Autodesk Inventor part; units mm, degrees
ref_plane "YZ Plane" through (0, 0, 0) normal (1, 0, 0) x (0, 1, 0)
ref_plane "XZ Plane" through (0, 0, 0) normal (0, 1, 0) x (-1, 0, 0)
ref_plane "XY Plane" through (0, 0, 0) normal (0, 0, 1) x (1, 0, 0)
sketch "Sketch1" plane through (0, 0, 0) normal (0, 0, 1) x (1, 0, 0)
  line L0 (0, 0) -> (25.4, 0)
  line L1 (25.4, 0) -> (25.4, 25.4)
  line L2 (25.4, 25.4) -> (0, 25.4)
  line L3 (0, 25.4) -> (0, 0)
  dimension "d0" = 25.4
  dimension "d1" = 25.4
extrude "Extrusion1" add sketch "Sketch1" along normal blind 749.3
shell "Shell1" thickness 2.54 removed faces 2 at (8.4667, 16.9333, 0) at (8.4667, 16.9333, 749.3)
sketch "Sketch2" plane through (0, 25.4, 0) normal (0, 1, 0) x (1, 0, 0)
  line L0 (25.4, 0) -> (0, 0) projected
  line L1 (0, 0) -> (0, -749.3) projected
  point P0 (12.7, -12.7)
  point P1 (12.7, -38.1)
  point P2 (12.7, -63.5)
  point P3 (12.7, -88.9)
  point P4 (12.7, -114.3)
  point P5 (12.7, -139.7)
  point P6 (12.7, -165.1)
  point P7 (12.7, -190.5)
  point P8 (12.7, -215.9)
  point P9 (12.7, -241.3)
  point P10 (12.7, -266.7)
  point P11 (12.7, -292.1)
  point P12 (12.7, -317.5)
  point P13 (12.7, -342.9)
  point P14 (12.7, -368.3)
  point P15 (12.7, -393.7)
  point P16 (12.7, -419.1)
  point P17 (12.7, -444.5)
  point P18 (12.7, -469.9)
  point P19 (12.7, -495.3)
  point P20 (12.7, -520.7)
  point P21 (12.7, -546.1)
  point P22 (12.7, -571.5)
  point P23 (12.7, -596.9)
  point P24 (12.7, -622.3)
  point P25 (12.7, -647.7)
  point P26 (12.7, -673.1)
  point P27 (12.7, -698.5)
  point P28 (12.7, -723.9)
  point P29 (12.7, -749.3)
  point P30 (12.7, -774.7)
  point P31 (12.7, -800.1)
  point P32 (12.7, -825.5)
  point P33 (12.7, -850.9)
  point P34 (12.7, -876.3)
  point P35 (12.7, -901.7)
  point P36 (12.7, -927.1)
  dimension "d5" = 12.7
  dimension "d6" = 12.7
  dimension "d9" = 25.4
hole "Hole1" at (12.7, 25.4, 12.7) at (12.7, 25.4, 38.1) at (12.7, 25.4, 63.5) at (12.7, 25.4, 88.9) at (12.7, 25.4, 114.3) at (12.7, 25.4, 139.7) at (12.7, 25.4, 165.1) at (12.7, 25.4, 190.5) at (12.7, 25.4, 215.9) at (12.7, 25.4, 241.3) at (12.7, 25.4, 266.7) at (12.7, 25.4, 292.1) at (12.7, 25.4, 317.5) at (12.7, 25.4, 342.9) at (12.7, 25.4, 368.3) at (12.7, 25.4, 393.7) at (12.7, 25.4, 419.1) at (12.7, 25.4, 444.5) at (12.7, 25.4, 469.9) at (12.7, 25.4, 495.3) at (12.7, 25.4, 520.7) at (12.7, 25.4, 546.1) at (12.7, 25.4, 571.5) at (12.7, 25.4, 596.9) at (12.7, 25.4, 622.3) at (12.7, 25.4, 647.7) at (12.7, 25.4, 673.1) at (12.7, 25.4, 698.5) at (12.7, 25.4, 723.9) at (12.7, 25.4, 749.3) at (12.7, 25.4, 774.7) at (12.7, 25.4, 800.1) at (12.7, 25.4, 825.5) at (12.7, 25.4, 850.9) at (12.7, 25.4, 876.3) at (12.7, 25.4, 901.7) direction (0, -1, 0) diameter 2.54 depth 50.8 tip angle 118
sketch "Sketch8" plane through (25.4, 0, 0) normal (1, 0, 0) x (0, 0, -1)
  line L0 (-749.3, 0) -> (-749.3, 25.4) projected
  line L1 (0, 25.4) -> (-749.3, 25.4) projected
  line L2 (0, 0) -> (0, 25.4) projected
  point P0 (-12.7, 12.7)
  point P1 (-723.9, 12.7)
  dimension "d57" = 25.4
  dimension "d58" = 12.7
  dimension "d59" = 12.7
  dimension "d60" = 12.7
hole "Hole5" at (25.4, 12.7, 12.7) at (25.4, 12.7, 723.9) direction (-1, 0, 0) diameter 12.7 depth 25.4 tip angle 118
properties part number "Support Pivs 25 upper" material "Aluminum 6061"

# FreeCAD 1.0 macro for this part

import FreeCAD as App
import Part
import Sketcher

V = App.Vector
Q = App.Units.Quantity


def faces_at(feature, points):
    """Names of the faces that lie closest to the given points."""
    faces = feature.Shape.Faces
    near = lambda p: min(range(len(faces)), key=lambda i: faces[i].distToShape(Part.Vertex(*p))[0])
    return sorted({f"Face{near(p) + 1}" for p in points})


def add_polygon(sketch, points):
    """Adds a closed chain of lines whose ends are joined by coincident constraints."""
    first, n = sketch.GeometryCount, len(points)
    for a, b in zip(points, points[1:] + points[:1]):
        sketch.addGeometry(Part.LineSegment(App.Vector(*a, 0), App.Vector(*b, 0)), False)
    for i in range(n):
        sketch.addConstraint(Sketcher.Constraint("Coincident", first + i, 2, first + (i + 1) % n, 1))

doc = App.newDocument("Part")
body = doc.addObject("PartDesign::Body", "Body")

# Sketch on XY plane
sketch1 = body.newObject("Sketcher::SketchObject", "Sketch")
sketch1.AttachmentSupport = (doc.getObject("XY_Plane"), [""])
sketch1.MapMode = "FlatFace"
add_polygon(sketch1, [(0, 25.4), (0, 0), (25.4, 0), (25.4, 25.4)])  # lines 0-3
sketch1.addConstraint(Sketcher.Constraint("Vertical", 0))
sketch1.addConstraint(Sketcher.Constraint("Horizontal", 1))
sketch1.addConstraint(Sketcher.Constraint("Vertical", 2))
sketch1.addConstraint(Sketcher.Constraint("Horizontal", 3))
sketch1.addConstraint(Sketcher.Constraint("Coincident", 0, 2, -1, 1))
sketch1.addConstraint(Sketcher.Constraint("Equal", 3, 0))
sketch1.addConstraint(Sketcher.Constraint("DistanceX", 1, 1, 1, 2, Q("1 in")))
pad1 = body.newObject("PartDesign::Pad", "Pad")
pad1.Profile = sketch1
pad1.Length = Q("29.5 in")
doc.recompute()

thickness = body.newObject("PartDesign::Thickness", "Thickness")
thickness.Base = (pad1, faces_at(pad1, [(8.467, 16.933, 0), (8.467, 16.933, 749.3)]))
thickness.Value = Q("0.1 in")
thickness.Reversed = True
thickness.Join = "Intersection"

# Sketch on XZ plane
sketch2 = body.newObject("Sketcher::SketchObject", "Sketch001")
sketch2.AttachmentSupport = (doc.getObject("XZ_Plane"), [""])
sketch2.MapMode = "FlatFace"
sketch2.AttachmentOffset = App.Placement(V(0, 0, -1 * 25.4), App.Rotation())
sketch2.addGeometry(Part.Circle(V(12.7, 12.7, 0), V(0, 0, 1), 1.27), False)
sketch2.addGeometry(Part.Circle(V(12.7, 38.1, 0), V(0, 0, 1), 1.27), False)
sketch2.addGeometry(Part.Circle(V(12.7, 63.5, 0), V(0, 0, 1), 1.27), False)
sketch2.addGeometry(Part.Circle(V(12.7, 88.9, 0), V(0, 0, 1), 1.27), False)
sketch2.addGeometry(Part.Circle(V(12.7, 114.3, 0), V(0, 0, 1), 1.27), False)
sketch2.addGeometry(Part.Circle(V(12.7, 139.7, 0), V(0, 0, 1), 1.27), False)
sketch2.addGeometry(Part.Circle(V(12.7, 165.1, 0), V(0, 0, 1), 1.27), False)
sketch2.addGeometry(Part.Circle(V(12.7, 190.5, 0), V(0, 0, 1), 1.27), False)
sketch2.addGeometry(Part.Circle(V(12.7, 215.9, 0), V(0, 0, 1), 1.27), False)
sketch2.addGeometry(Part.Circle(V(12.7, 241.3, 0), V(0, 0, 1), 1.27), False)
sketch2.addGeometry(Part.Circle(V(12.7, 266.7, 0), V(0, 0, 1), 1.27), False)
sketch2.addGeometry(Part.Circle(V(12.7, 292.1, 0), V(0, 0, 1), 1.27), False)
sketch2.addGeometry(Part.Circle(V(12.7, 317.5, 0), V(0, 0, 1), 1.27), False)
sketch2.addGeometry(Part.Circle(V(12.7, 342.9, 0), V(0, 0, 1), 1.27), False)
sketch2.addGeometry(Part.Circle(V(12.7, 368.3, 0), V(0, 0, 1), 1.27), False)
sketch2.addGeometry(Part.Circle(V(12.7, 393.7, 0), V(0, 0, 1), 1.27), False)
sketch2.addGeometry(Part.Circle(V(12.7, 419.1, 0), V(0, 0, 1), 1.27), False)
sketch2.addGeometry(Part.Circle(V(12.7, 444.5, 0), V(0, 0, 1), 1.27), False)
sketch2.addGeometry(Part.Circle(V(12.7, 469.9, 0), V(0, 0, 1), 1.27), False)
sketch2.addGeometry(Part.Circle(V(12.7, 495.3, 0), V(0, 0, 1), 1.27), False)
sketch2.addGeometry(Part.Circle(V(12.7, 520.7, 0), V(0, 0, 1), 1.27), False)
sketch2.addGeometry(Part.Circle(V(12.7, 546.1, 0), V(0, 0, 1), 1.27), False)
sketch2.addGeometry(Part.Circle(V(12.7, 571.5, 0), V(0, 0, 1), 1.27), False)
sketch2.addGeometry(Part.Circle(V(12.7, 596.9, 0), V(0, 0, 1), 1.27), False)
sketch2.addGeometry(Part.Circle(V(12.7, 622.3, 0), V(0, 0, 1), 1.27), False)
sketch2.addGeometry(Part.Circle(V(12.7, 647.7, 0), V(0, 0, 1), 1.27), False)
sketch2.addGeometry(Part.Circle(V(12.7, 673.1, 0), V(0, 0, 1), 1.27), False)
sketch2.addGeometry(Part.Circle(V(12.7, 698.5, 0), V(0, 0, 1), 1.27), False)
sketch2.addGeometry(Part.Circle(V(12.7, 723.9, 0), V(0, 0, 1), 1.27), False)
sketch2.addGeometry(Part.Circle(V(12.7, 749.3, 0), V(0, 0, 1), 1.27), False)
sketch2.addGeometry(Part.Circle(V(12.7, 774.7, 0), V(0, 0, 1), 1.27), False)
sketch2.addGeometry(Part.Circle(V(12.7, 800.1, 0), V(0, 0, 1), 1.27), False)
sketch2.addGeometry(Part.Circle(V(12.7, 825.5, 0), V(0, 0, 1), 1.27), False)
sketch2.addGeometry(Part.Circle(V(12.7, 850.9, 0), V(0, 0, 1), 1.27), False)
sketch2.addGeometry(Part.Circle(V(12.7, 876.3, 0), V(0, 0, 1), 1.27), False)
sketch2.addGeometry(Part.Circle(V(12.7, 901.7, 0), V(0, 0, 1), 1.27), False)
sketch2.addConstraint(Sketcher.Constraint("Equal", 0, 1))
sketch2.addConstraint(Sketcher.Constraint("Equal", 1, 2))
sketch2.addConstraint(Sketcher.Constraint("Equal", 2, 3))
sketch2.addConstraint(Sketcher.Constraint("Equal", 3, 4))
sketch2.addConstraint(Sketcher.Constraint("Equal", 4, 5))
sketch2.addConstraint(Sketcher.Constraint("Equal", 5, 6))
sketch2.addConstraint(Sketcher.Constraint("Equal", 6, 7))
sketch2.addConstraint(Sketcher.Constraint("Equal", 7, 8))
sketch2.addConstraint(Sketcher.Constraint("Equal", 8, 9))
sketch2.addConstraint(Sketcher.Constraint("Equal", 9, 10))
sketch2.addConstraint(Sketcher.Constraint("Equal", 10, 11))
sketch2.addConstraint(Sketcher.Constraint("Equal", 11, 12))
sketch2.addConstraint(Sketcher.Constraint("Equal", 12, 13))
sketch2.addConstraint(Sketcher.Constraint("Equal", 13, 14))
sketch2.addConstraint(Sketcher.Constraint("Equal", 14, 15))
sketch2.addConstraint(Sketcher.Constraint("Equal", 15, 16))
sketch2.addConstraint(Sketcher.Constraint("Equal", 16, 17))
sketch2.addConstraint(Sketcher.Constraint("Equal", 17, 18))
sketch2.addConstraint(Sketcher.Constraint("Equal", 18, 19))
sketch2.addConstraint(Sketcher.Constraint("Equal", 19, 20))
sketch2.addConstraint(Sketcher.Constraint("Equal", 20, 21))
sketch2.addConstraint(Sketcher.Constraint("Equal", 21, 22))
sketch2.addConstraint(Sketcher.Constraint("Equal", 22, 23))
sketch2.addConstraint(Sketcher.Constraint("Equal", 23, 24))
sketch2.addConstraint(Sketcher.Constraint("Equal", 24, 25))
sketch2.addConstraint(Sketcher.Constraint("Equal", 25, 26))
sketch2.addConstraint(Sketcher.Constraint("Equal", 26, 27))
sketch2.addConstraint(Sketcher.Constraint("Equal", 27, 28))
sketch2.addConstraint(Sketcher.Constraint("Equal", 28, 29))
sketch2.addConstraint(Sketcher.Constraint("Equal", 29, 30))
sketch2.addConstraint(Sketcher.Constraint("Equal", 30, 31))
sketch2.addConstraint(Sketcher.Constraint("Equal", 31, 32))
sketch2.addConstraint(Sketcher.Constraint("Equal", 32, 33))
sketch2.addConstraint(Sketcher.Constraint("Equal", 33, 34))
sketch2.addConstraint(Sketcher.Constraint("Equal", 34, 35))
sketch2.addConstraint(Sketcher.Constraint("Vertical", 0, 3, 1, 3))
sketch2.addConstraint(Sketcher.Constraint("Vertical", 1, 3, 2, 3))
sketch2.addConstraint(Sketcher.Constraint("Vertical", 2, 3, 3, 3))
sketch2.addConstraint(Sketcher.Constraint("Vertical", 3, 3, 4, 3))
sketch2.addConstraint(Sketcher.Constraint("Vertical", 4, 3, 5, 3))
sketch2.addConstraint(Sketcher.Constraint("Vertical", 5, 3, 6, 3))
sketch2.addConstraint(Sketcher.Constraint("Vertical", 6, 3, 7, 3))
sketch2.addConstraint(Sketcher.Constraint("Vertical", 7, 3, 8, 3))
sketch2.addConstraint(Sketcher.Constraint("Vertical", 8, 3, 9, 3))
sketch2.addConstraint(Sketcher.Constraint("Vertical", 9, 3, 10, 3))
sketch2.addConstraint(Sketcher.Constraint("Vertical", 10, 3, 11, 3))
sketch2.addConstraint(Sketcher.Constraint("Vertical", 11, 3, 12, 3))
sketch2.addConstraint(Sketcher.Constraint("Vertical", 12, 3, 13, 3))
sketch2.addConstraint(Sketcher.Constraint("Vertical", 13, 3, 14, 3))
sketch2.addConstraint(Sketcher.Constraint("Vertical", 14, 3, 15, 3))
sketch2.addConstraint(Sketcher.Constraint("Vertical", 15, 3, 16, 3))
sketch2.addConstraint(Sketcher.Constraint("Vertical", 16, 3, 17, 3))
sketch2.addConstraint(Sketcher.Constraint("Vertical", 17, 3, 18, 3))
sketch2.addConstraint(Sketcher.Constraint("Vertical", 18, 3, 19, 3))
sketch2.addConstraint(Sketcher.Constraint("Vertical", 19, 3, 20, 3))
sketch2.addConstraint(Sketcher.Constraint("Vertical", 20, 3, 21, 3))
sketch2.addConstraint(Sketcher.Constraint("Vertical", 21, 3, 22, 3))
sketch2.addConstraint(Sketcher.Constraint("Vertical", 22, 3, 23, 3))
sketch2.addConstraint(Sketcher.Constraint("Vertical", 23, 3, 24, 3))
sketch2.addConstraint(Sketcher.Constraint("Vertical", 24, 3, 25, 3))
sketch2.addConstraint(Sketcher.Constraint("Vertical", 25, 3, 26, 3))
sketch2.addConstraint(Sketcher.Constraint("Vertical", 26, 3, 27, 3))
sketch2.addConstraint(Sketcher.Constraint("Vertical", 27, 3, 28, 3))
sketch2.addConstraint(Sketcher.Constraint("Vertical", 28, 3, 29, 3))
sketch2.addConstraint(Sketcher.Constraint("Vertical", 29, 3, 30, 3))
sketch2.addConstraint(Sketcher.Constraint("Vertical", 30, 3, 31, 3))
sketch2.addConstraint(Sketcher.Constraint("Vertical", 31, 3, 32, 3))
sketch2.addConstraint(Sketcher.Constraint("Vertical", 32, 3, 33, 3))
sketch2.addConstraint(Sketcher.Constraint("Vertical", 33, 3, 34, 3))
sketch2.addConstraint(Sketcher.Constraint("Vertical", 34, 3, 35, 3))
sketch2.addConstraint(Sketcher.Constraint("Diameter", 0, Q("0.1 in")))
sketch2.addConstraint(Sketcher.Constraint("DistanceY", 0, 3, 1, 3, Q("1 in")))
sketch2.addConstraint(Sketcher.Constraint("DistanceY", 1, 3, 2, 3, Q("1 in")))
sketch2.addConstraint(Sketcher.Constraint("DistanceY", 2, 3, 3, 3, Q("1 in")))
sketch2.addConstraint(Sketcher.Constraint("DistanceY", 3, 3, 4, 3, Q("1 in")))
sketch2.addConstraint(Sketcher.Constraint("DistanceY", 4, 3, 5, 3, Q("1 in")))
sketch2.addConstraint(Sketcher.Constraint("DistanceY", 5, 3, 6, 3, Q("1 in")))
sketch2.addConstraint(Sketcher.Constraint("DistanceY", 6, 3, 7, 3, Q("1 in")))
sketch2.addConstraint(Sketcher.Constraint("DistanceY", 7, 3, 8, 3, Q("1 in")))
sketch2.addConstraint(Sketcher.Constraint("DistanceY", 8, 3, 9, 3, Q("1 in")))
sketch2.addConstraint(Sketcher.Constraint("DistanceY", 9, 3, 10, 3, Q("1 in")))
sketch2.addConstraint(Sketcher.Constraint("DistanceY", 10, 3, 11, 3, Q("1 in")))
sketch2.addConstraint(Sketcher.Constraint("DistanceY", 11, 3, 12, 3, Q("1 in")))
sketch2.addConstraint(Sketcher.Constraint("DistanceY", 12, 3, 13, 3, Q("1 in")))
sketch2.addConstraint(Sketcher.Constraint("DistanceY", 13, 3, 14, 3, Q("1 in")))
sketch2.addConstraint(Sketcher.Constraint("DistanceY", 14, 3, 15, 3, Q("1 in")))
sketch2.addConstraint(Sketcher.Constraint("DistanceY", 15, 3, 16, 3, Q("1 in")))
sketch2.addConstraint(Sketcher.Constraint("DistanceY", 16, 3, 17, 3, Q("1 in")))
sketch2.addConstraint(Sketcher.Constraint("DistanceY", 17, 3, 18, 3, Q("1 in")))
sketch2.addConstraint(Sketcher.Constraint("DistanceY", 18, 3, 19, 3, Q("1 in")))
sketch2.addConstraint(Sketcher.Constraint("DistanceY", 19, 3, 20, 3, Q("1 in")))
sketch2.addConstraint(Sketcher.Constraint("DistanceY", 20, 3, 21, 3, Q("1 in")))
sketch2.addConstraint(Sketcher.Constraint("DistanceY", 21, 3, 22, 3, Q("1 in")))
sketch2.addConstraint(Sketcher.Constraint("DistanceY", 22, 3, 23, 3, Q("1 in")))
sketch2.addConstraint(Sketcher.Constraint("DistanceY", 23, 3, 24, 3, Q("1 in")))
sketch2.addConstraint(Sketcher.Constraint("DistanceY", 24, 3, 25, 3, Q("1 in")))
sketch2.addConstraint(Sketcher.Constraint("DistanceY", 25, 3, 26, 3, Q("1 in")))
sketch2.addConstraint(Sketcher.Constraint("DistanceY", 26, 3, 27, 3, Q("1 in")))
sketch2.addConstraint(Sketcher.Constraint("DistanceY", 27, 3, 28, 3, Q("1 in")))
sketch2.addConstraint(Sketcher.Constraint("DistanceY", 28, 3, 29, 3, Q("1 in")))
sketch2.addConstraint(Sketcher.Constraint("DistanceY", 29, 3, 30, 3, Q("1 in")))
sketch2.addConstraint(Sketcher.Constraint("DistanceY", 30, 3, 31, 3, Q("1 in")))
sketch2.addConstraint(Sketcher.Constraint("DistanceY", 31, 3, 32, 3, Q("1 in")))
sketch2.addConstraint(Sketcher.Constraint("DistanceY", 32, 3, 33, 3, Q("1 in")))
sketch2.addConstraint(Sketcher.Constraint("DistanceY", 33, 3, 34, 3, Q("1 in")))
sketch2.addConstraint(Sketcher.Constraint("DistanceY", 34, 3, 35, 3, Q("1 in")))
sketch2.addConstraint(Sketcher.Constraint("DistanceX", -1, 1, 0, 3, Q("0.5 in")))
sketch2.addConstraint(Sketcher.Constraint("DistanceY", -1, 1, 0, 3, Q("0.5 in")))
doc.recompute()
hole = body.newObject("PartDesign::Hole", "Hole")
hole.Profile = sketch2
hole.ThreadType = "None"
hole.Diameter = Q("0.1 in")
hole.DepthType = "Dimension"
hole.Depth = Q("2 in")
hole.DrillPoint = "Angled"
hole.DrillPointAngle = 118
hole.Reversed = True

# Sketch on YZ plane
sketch3 = body.newObject("Sketcher::SketchObject", "Sketch002")
sketch3.AttachmentSupport = (doc.getObject("YZ_Plane"), [""])
sketch3.MapMode = "FlatFace"
sketch3.AttachmentOffset = App.Placement(V(0, 0, 1 * 25.4), App.Rotation())
sketch3.addGeometry(Part.Circle(V(12.7, 12.7, 0), V(0, 0, 1), 6.35), False)
sketch3.addGeometry(Part.Circle(V(12.7, 723.9, 0), V(0, 0, 1), 6.35), False)
sketch3.addConstraint(Sketcher.Constraint("Equal", 0, 1))
sketch3.addConstraint(Sketcher.Constraint("Vertical", 0, 3, 1, 3))
sketch3.addConstraint(Sketcher.Constraint("Diameter", 0, Q("0.5 in")))
sketch3.addConstraint(Sketcher.Constraint("DistanceY", 0, 3, 1, 3, Q("28 in")))
sketch3.addConstraint(Sketcher.Constraint("DistanceX", -1, 1, 0, 3, Q("0.5 in")))
sketch3.addConstraint(Sketcher.Constraint("DistanceY", -1, 1, 0, 3, Q("0.5 in")))
doc.recompute()
hole2 = body.newObject("PartDesign::Hole", "Hole001")
hole2.Profile = sketch3
hole2.ThreadType = "None"
hole2.Diameter = Q("0.5 in")
hole2.DepthType = "Dimension"
hole2.Depth = Q("1 in")
hole2.DrillPoint = "Angled"
hole2.DrillPointAngle = 118

doc.recompute()
